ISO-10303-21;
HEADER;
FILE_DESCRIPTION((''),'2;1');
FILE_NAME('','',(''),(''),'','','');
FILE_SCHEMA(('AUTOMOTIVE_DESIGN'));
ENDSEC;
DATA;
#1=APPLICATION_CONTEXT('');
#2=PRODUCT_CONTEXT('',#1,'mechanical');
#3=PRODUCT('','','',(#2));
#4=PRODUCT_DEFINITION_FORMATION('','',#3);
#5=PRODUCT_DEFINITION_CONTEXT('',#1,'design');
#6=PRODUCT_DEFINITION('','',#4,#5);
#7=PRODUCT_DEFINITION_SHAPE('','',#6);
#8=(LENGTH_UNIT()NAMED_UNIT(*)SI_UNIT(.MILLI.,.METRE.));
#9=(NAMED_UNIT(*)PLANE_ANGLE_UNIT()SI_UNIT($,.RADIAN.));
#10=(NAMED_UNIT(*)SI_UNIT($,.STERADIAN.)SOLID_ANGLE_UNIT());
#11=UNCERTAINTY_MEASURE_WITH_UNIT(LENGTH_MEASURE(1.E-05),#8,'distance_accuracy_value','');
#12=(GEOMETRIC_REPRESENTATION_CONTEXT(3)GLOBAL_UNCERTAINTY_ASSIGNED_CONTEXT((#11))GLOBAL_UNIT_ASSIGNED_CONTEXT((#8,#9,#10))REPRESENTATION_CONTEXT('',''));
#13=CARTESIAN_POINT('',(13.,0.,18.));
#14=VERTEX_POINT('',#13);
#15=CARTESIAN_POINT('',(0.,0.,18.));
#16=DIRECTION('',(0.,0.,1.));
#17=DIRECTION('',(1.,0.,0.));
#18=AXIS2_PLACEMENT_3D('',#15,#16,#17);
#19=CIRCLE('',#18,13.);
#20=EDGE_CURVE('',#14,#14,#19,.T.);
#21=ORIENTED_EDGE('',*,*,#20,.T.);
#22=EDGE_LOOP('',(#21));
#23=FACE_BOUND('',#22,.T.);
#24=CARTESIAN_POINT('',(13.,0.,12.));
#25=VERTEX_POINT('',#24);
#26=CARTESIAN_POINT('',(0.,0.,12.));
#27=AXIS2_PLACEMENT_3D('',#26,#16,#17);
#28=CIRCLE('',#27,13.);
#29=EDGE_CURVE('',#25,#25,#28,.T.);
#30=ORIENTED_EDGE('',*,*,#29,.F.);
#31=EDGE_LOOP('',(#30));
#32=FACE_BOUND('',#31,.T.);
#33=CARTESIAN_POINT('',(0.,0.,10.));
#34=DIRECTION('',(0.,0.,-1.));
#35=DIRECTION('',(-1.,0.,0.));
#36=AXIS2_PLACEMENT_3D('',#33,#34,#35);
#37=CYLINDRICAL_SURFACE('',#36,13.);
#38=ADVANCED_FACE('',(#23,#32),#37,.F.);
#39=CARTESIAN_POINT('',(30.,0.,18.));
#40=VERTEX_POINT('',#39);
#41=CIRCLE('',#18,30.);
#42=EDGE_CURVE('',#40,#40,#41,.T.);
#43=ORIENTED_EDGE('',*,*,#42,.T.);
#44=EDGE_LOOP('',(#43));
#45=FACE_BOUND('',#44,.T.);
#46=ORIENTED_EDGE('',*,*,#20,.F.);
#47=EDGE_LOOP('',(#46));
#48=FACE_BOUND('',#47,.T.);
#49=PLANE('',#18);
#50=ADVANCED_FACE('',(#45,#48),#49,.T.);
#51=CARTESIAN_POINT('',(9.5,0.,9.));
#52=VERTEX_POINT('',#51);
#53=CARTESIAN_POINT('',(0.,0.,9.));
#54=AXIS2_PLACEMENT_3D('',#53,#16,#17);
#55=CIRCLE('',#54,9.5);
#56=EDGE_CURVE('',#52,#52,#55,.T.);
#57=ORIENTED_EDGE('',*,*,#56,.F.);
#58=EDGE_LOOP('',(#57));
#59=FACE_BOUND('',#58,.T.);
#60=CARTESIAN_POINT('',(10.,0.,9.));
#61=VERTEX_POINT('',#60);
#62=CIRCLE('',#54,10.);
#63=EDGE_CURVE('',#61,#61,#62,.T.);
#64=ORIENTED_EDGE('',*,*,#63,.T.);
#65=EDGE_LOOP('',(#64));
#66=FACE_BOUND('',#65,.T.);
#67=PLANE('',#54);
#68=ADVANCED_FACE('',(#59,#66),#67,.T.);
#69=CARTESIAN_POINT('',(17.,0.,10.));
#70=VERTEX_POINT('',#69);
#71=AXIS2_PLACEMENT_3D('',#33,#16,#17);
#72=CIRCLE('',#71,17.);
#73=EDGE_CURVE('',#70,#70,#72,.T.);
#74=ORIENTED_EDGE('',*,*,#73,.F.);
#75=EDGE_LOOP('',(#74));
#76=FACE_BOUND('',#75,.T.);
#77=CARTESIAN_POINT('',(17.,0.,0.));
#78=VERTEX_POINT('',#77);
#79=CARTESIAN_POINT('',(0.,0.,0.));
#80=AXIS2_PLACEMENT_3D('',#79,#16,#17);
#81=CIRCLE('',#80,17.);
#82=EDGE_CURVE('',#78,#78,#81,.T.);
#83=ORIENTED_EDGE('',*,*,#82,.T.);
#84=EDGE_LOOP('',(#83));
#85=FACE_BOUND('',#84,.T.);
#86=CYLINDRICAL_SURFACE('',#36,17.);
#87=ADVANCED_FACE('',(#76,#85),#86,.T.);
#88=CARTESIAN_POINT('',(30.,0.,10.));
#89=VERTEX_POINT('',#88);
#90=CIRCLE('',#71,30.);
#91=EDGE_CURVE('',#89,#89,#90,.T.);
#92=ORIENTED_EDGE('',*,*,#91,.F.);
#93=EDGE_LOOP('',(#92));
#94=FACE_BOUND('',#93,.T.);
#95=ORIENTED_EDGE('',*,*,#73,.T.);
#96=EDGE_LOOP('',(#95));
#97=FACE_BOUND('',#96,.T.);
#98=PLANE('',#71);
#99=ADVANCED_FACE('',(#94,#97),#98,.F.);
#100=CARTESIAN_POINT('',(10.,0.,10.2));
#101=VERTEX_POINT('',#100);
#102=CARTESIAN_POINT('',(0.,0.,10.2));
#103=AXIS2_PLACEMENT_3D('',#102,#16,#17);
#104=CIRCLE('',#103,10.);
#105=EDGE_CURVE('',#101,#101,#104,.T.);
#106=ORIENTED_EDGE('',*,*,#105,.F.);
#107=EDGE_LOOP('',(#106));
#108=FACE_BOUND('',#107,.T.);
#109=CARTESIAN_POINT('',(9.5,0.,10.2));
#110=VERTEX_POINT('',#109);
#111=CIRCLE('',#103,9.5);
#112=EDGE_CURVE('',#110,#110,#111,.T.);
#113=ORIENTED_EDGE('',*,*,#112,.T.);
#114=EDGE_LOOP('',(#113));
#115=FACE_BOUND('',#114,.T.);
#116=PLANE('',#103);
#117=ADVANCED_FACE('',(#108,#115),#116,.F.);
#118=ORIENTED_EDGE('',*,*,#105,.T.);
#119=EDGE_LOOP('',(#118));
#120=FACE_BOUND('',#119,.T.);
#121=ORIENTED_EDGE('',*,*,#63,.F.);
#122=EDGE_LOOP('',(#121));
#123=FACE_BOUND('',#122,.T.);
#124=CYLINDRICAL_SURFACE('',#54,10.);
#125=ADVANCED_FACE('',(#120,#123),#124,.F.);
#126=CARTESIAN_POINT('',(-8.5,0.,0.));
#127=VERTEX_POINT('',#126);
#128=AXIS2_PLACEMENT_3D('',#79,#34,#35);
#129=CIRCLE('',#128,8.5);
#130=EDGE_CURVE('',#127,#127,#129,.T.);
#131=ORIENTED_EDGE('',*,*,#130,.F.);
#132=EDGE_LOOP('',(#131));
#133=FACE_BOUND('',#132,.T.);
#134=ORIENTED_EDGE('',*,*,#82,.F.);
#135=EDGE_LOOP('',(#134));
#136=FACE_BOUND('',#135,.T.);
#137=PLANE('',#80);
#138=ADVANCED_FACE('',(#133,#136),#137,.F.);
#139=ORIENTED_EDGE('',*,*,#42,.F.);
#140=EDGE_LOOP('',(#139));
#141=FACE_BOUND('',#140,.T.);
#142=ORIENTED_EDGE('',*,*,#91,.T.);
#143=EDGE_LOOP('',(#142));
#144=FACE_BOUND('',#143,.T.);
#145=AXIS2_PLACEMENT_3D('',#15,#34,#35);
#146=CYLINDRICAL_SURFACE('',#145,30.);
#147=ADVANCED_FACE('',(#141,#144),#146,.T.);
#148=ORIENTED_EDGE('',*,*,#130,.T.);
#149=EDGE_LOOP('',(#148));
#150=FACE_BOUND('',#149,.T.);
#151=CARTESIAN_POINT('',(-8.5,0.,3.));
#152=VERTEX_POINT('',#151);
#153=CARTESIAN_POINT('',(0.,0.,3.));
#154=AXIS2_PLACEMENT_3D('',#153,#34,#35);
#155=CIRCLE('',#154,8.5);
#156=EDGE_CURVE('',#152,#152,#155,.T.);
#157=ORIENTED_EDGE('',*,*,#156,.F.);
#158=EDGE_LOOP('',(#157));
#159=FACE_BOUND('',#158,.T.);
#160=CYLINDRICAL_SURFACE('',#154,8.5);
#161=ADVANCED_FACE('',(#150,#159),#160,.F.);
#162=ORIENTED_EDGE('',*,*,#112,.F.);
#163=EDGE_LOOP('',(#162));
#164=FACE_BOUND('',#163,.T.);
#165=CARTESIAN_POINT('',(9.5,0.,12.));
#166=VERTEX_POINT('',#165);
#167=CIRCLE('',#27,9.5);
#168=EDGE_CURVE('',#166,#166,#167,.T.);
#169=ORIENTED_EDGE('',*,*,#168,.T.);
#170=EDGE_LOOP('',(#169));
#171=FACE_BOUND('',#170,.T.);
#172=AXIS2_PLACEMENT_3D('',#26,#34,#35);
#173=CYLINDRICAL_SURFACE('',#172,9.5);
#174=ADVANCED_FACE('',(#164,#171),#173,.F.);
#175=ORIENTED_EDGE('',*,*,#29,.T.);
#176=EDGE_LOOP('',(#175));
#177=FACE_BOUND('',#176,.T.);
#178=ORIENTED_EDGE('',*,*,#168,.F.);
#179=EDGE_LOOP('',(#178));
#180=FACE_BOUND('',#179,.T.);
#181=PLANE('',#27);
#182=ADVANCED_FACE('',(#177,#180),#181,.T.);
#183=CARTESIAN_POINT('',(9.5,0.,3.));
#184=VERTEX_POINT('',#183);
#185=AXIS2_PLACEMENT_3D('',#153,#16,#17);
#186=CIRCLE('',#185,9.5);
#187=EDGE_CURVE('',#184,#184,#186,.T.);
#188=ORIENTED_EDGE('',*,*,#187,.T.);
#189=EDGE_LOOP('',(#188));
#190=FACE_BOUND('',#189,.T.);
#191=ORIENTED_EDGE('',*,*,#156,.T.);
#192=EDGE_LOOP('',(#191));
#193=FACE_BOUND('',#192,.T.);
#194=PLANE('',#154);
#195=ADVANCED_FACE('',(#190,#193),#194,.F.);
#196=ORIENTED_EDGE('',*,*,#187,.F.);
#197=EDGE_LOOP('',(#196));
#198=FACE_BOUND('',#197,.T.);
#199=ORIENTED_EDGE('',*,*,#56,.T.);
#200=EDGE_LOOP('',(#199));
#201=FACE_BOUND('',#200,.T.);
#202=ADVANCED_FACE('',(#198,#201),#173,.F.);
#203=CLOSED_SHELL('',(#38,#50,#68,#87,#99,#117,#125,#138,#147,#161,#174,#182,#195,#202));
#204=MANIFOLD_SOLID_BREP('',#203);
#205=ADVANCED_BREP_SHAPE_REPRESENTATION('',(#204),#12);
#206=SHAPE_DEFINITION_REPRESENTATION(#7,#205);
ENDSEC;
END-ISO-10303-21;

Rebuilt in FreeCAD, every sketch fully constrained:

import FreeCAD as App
import Part
import Sketcher
from FreeCAD import Vector
Q = App.Units.Quantity

doc = App.newDocument("Part")
body = doc.addObject("PartDesign::Body", "Body")

sketch1 = doc.addObject("Sketcher::SketchObject", "Sketch")
body.addObject(sketch1)
sketch1.AttachmentSupport = (doc.XY_Plane, [""])
sketch1.MapMode = "FlatFace"
sketch1.addGeometry(Part.Circle(Vector(0, 0, 0), Vector(0, 0, 1), 17), False)
sketch1.addGeometry(Part.Circle(Vector(0, 0, 0), Vector(0, 0, 1), 13), False)
sketch1.addConstraint(Sketcher.Constraint("Coincident", 0, 3, -1, 1))
sketch1.addConstraint(Sketcher.Constraint("Coincident", 1, 3, -1, 1))
sketch1.addConstraint(Sketcher.Constraint("Diameter", 0, Q("34 mm")))
sketch1.addConstraint(Sketcher.Constraint("Diameter", 1, Q("26 mm")))
pad1 = doc.addObject("PartDesign::Pad", "Pad")
body.addObject(pad1)
pad1.Profile = sketch1
pad1.Length = 10

sketch2 = doc.addObject("Sketcher::SketchObject", "Sketch001")
body.addObject(sketch2)
sketch2.AttachmentSupport = (doc.XY_Plane, [""])
sketch2.MapMode = "FlatFace"
sketch2.AttachmentOffset = App.Placement(Vector(0, 0, 10), App.Rotation())
sketch2.addGeometry(Part.Circle(Vector(0, 0, 0), Vector(0, 0, 1), 30), False)
sketch2.addGeometry(Part.Circle(Vector(0, 0, 0), Vector(0, 0, 1), 13), False)
sketch2.addConstraint(Sketcher.Constraint("Coincident", 0, 3, -1, 1))
sketch2.addConstraint(Sketcher.Constraint("Coincident", 1, 3, -1, 1))
sketch2.addConstraint(Sketcher.Constraint("Diameter", 0, Q("60 mm")))
sketch2.addConstraint(Sketcher.Constraint("Diameter", 1, Q("26 mm")))
pad2 = doc.addObject("PartDesign::Pad", "Pad001")
body.addObject(pad2)
pad2.Profile = sketch2
pad2.Length = 8

sketch3 = doc.addObject("Sketcher::SketchObject", "Sketch002")
body.addObject(sketch3)
sketch3.AttachmentSupport = (doc.XY_Plane, [""])
sketch3.MapMode = "FlatFace"
sketch3.addGeometry(Part.Circle(Vector(0, 0, 0), Vector(0, 0, 1), 17), False)
sketch3.addGeometry(Part.Circle(Vector(0, 0, 0), Vector(0, 0, 1), 8.5), False)
sketch3.addConstraint(Sketcher.Constraint("Coincident", 0, 3, -1, 1))
sketch3.addConstraint(Sketcher.Constraint("Coincident", 1, 3, -1, 1))
sketch3.addConstraint(Sketcher.Constraint("Diameter", 0, Q("34 mm")))
sketch3.addConstraint(Sketcher.Constraint("Diameter", 1, Q("17 mm")))
pad3 = doc.addObject("PartDesign::Pad", "Pad002")
body.addObject(pad3)
pad3.Profile = sketch3
pad3.Length = 3

sketch4 = doc.addObject("Sketcher::SketchObject", "Sketch003")
body.addObject(sketch4)
sketch4.AttachmentSupport = (doc.XY_Plane, [""])
sketch4.MapMode = "FlatFace"
sketch4.AttachmentOffset = App.Placement(Vector(0, 0, 3), App.Rotation())
sketch4.addGeometry(Part.Circle(Vector(0, 0, 0), Vector(0, 0, 1), 13), False)
sketch4.addGeometry(Part.Circle(Vector(0, 0, 0), Vector(0, 0, 1), 9.5), False)
sketch4.addConstraint(Sketcher.Constraint("Coincident", 0, 3, -1, 1))
sketch4.addConstraint(Sketcher.Constraint("Coincident", 1, 3, -1, 1))
sketch4.addConstraint(Sketcher.Constraint("Diameter", 0, Q("26 mm")))
sketch4.addConstraint(Sketcher.Constraint("Diameter", 1, Q("19 mm")))
pad4 = doc.addObject("PartDesign::Pad", "Pad003")
body.addObject(pad4)
pad4.Profile = sketch4
pad4.Length = 9

sketch5 = doc.addObject("Sketcher::SketchObject", "Sketch004")
body.addObject(sketch5)
sketch5.AttachmentSupport = (doc.XY_Plane, [""])
sketch5.MapMode = "FlatFace"
sketch5.AttachmentOffset = App.Placement(Vector(0, 0, 10.2), App.Rotation())
sketch5.addGeometry(Part.Circle(Vector(0, 0, 0), Vector(0, 0, 1), 10), False)
sketch5.addConstraint(Sketcher.Constraint("Coincident", 0, 3, -1, 1))
sketch5.addConstraint(Sketcher.Constraint("Diameter", 0, Q("20 mm")))
pocket1 = doc.addObject("PartDesign::Pocket", "Pocket")
body.addObject(pocket1)
pocket1.Profile = sketch5
pocket1.Length = 1.2

doc.recompute()
